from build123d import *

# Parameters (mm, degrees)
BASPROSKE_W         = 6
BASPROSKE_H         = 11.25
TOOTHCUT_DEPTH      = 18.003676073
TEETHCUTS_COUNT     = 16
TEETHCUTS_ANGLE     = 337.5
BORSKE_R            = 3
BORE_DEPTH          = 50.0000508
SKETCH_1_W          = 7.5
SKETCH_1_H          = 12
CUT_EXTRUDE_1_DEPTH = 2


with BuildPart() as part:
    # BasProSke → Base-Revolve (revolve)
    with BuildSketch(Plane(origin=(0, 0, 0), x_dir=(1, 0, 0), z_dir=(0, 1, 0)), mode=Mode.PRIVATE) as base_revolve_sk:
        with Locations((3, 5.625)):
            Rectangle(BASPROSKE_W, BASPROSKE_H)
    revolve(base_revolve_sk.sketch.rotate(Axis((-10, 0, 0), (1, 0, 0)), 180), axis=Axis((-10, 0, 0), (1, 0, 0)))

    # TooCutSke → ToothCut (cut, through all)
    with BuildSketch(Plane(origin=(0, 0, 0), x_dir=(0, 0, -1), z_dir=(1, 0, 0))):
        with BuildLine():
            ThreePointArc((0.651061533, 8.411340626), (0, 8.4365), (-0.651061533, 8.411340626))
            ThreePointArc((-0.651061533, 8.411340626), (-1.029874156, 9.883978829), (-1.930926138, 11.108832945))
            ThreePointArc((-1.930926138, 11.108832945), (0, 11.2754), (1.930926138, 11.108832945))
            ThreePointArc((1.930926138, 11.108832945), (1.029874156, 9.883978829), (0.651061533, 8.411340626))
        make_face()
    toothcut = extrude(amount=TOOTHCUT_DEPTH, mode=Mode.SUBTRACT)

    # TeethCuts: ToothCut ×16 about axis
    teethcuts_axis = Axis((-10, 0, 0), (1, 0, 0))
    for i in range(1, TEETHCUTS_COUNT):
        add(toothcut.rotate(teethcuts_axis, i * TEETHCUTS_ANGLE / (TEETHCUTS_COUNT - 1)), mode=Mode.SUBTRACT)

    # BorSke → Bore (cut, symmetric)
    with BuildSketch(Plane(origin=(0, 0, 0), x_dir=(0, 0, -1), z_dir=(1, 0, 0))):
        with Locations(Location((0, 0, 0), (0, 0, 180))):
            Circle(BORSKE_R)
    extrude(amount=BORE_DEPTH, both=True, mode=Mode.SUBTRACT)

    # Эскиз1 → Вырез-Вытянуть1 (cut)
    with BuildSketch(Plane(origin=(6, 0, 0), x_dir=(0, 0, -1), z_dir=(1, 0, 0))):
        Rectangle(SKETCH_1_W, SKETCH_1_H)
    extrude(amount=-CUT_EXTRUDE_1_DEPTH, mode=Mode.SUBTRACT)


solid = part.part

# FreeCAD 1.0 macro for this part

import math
import FreeCAD as App
import Part
import Sketcher
Q = App.Units.Quantity

doc = App.newDocument("Part")
body = doc.addObject("PartDesign::Body", "Body")

# Sketch on XZ plane
sketch1 = body.newObject("Sketcher::SketchObject", "Sketch")
sketch1.AttachmentSupport = (doc.getObject("XZ_Plane"), [""])
sketch1.MapMode = "FlatFace"
sketch1.addGeometry([
    Part.LineSegment(App.Vector(0, -11.25, 0), App.Vector(0, 0, 0)),
    Part.LineSegment(App.Vector(0, 0, 0), App.Vector(6, 0, 0)),
    Part.LineSegment(App.Vector(6, 0, 0), App.Vector(6, -11.25, 0)),
    Part.LineSegment(App.Vector(6, -11.25, 0), App.Vector(0, -11.25, 0)),
], False)
sketch1.addConstraint([
    Sketcher.Constraint("Coincident", 0, 2, 1, 1),
    Sketcher.Constraint("Coincident", 1, 2, 2, 1),
    Sketcher.Constraint("Coincident", 2, 2, 3, 1),
    Sketcher.Constraint("Coincident", 3, 2, 0, 1),
    Sketcher.Constraint("Vertical", 0),
    Sketcher.Constraint("Horizontal", 1),
    Sketcher.Constraint("Vertical", 2),
    Sketcher.Constraint("Horizontal", 3),
    Sketcher.Constraint("Coincident", 0, 2, -1, 1),
    Sketcher.Constraint("DistanceX", 1, 1, 1, 2, Q("6 mm")),
    Sketcher.Constraint("DistanceY", 0, 1, 0, 2, Q("11.25 mm")),
])
revolution = body.newObject("PartDesign::Revolution", "Revolution")
revolution.Profile = sketch1
revolution.ReferenceAxis = (sketch1, ["H_Axis"])
revolution.Angle = 360

# Sketch on YZ plane
sketch2 = body.newObject("Sketcher::SketchObject", "Sketch001")
sketch2.AttachmentSupport = (doc.getObject("YZ_Plane"), [""])
sketch2.MapMode = "FlatFace"
sketch2.addGeometry([
    Part.ArcOfCircle(Part.Circle(App.Vector(0, 0, 0), App.Vector(0, 0, 1), 8.4365), math.radians(-4.42603), math.radians(4.42603)),
    Part.ArcOfCircle(Part.Circle(App.Vector(8.16933, -4.643734, 0), App.Vector(0, 0, 1), 4), math.radians(42.703292), math.radians(86.531341)),
    Part.ArcOfCircle(Part.Circle(App.Vector(0, 0, 0), App.Vector(0, 0, 1), 11.2754), math.radians(-9.860576), math.radians(9.860576)),
    Part.ArcOfCircle(Part.Circle(App.Vector(8.16933, 4.643734, 0), App.Vector(0, 0, 1), 4), math.radians(-86.531341), math.radians(-42.703292)),
], False)
sketch2.addConstraint([
    Sketcher.Constraint("Coincident", 0, 1, 1, 2),
    Sketcher.Constraint("Coincident", 1, 1, 2, 1),
    Sketcher.Constraint("Coincident", 2, 2, 3, 2),
    Sketcher.Constraint("Coincident", 3, 1, 0, 2),
    Sketcher.Constraint("Coincident", 0, 3, -1, 1),
    Sketcher.Constraint("Coincident", 2, 3, -1, 1),
    Sketcher.Constraint("Equal", 1, 3),
    Sketcher.Constraint("Symmetric", 1, 3, 3, 3, -1),
    Sketcher.Constraint("Radius", 1, Q("4 mm")),
    Sketcher.Constraint("Radius", 0, Q("8.4365 mm")),
    Sketcher.Constraint("Radius", 2, Q("11.2754 mm")),
    Sketcher.Constraint("DistanceX", -1, 1, 1, 3, Q("8.16933 mm")),
    Sketcher.Constraint("DistanceX", -1, 1, 0, 1, Q("8.411341 mm")),
])
pocket1 = body.newObject("PartDesign::Pocket", "Pocket")
pocket1.Profile = sketch2
pocket1.Type = "ThroughAll"
pocket1.Reversed = True
doc.recompute()

polarpattern = body.newObject("PartDesign::PolarPattern", "PolarPattern")
polarpattern.Originals = [pocket1]
polarpattern.Axis = (doc.getObject("X_Axis"), [""])
polarpattern.Angle = 360
polarpattern.Occurrences = 16
body.Tip = polarpattern

# Sketch on YZ plane
sketch3 = body.newObject("Sketcher::SketchObject", "Sketch002")
sketch3.AttachmentSupport = (doc.getObject("YZ_Plane"), [""])
sketch3.MapMode = "FlatFace"
sketch3.addGeometry(Part.Circle(App.Vector(0, 0, 0), App.Vector(0, 0, 1), 3), False)
sketch3.addConstraint([
    Sketcher.Constraint("Coincident", 0, 3, -1, 1),
    Sketcher.Constraint("Diameter", 0, Q("6 mm")),
])
pocket2 = body.newObject("PartDesign::Pocket", "Pocket001")
pocket2.Profile = sketch3
pocket2.Length = 100.000102
pocket2.Midplane = True

# Sketch on YZ plane
sketch4 = body.newObject("Sketcher::SketchObject", "Sketch003")
sketch4.AttachmentSupport = (doc.getObject("YZ_Plane"), [""])
sketch4.MapMode = "FlatFace"
sketch4.AttachmentOffset = App.Placement(App.Vector(0, 0, 6), App.Rotation())
sketch4.addGeometry([
    Part.LineSegment(App.Vector(6, 3.75, 0), App.Vector(-6, 3.75, 0)),
    Part.LineSegment(App.Vector(-6, 3.75, 0), App.Vector(-6, -3.75, 0)),
    Part.LineSegment(App.Vector(-6, -3.75, 0), App.Vector(6, -3.75, 0)),
    Part.LineSegment(App.Vector(6, -3.75, 0), App.Vector(6, 3.75, 0)),
], False)
sketch4.addConstraint([
    Sketcher.Constraint("Coincident", 0, 2, 1, 1),
    Sketcher.Constraint("Coincident", 1, 2, 2, 1),
    Sketcher.Constraint("Coincident", 2, 2, 3, 1),
    Sketcher.Constraint("Coincident", 3, 2, 0, 1),
    Sketcher.Constraint("Horizontal", 0),
    Sketcher.Constraint("Vertical", 1),
    Sketcher.Constraint("Horizontal", 2),
    Sketcher.Constraint("Vertical", 3),
    Sketcher.Constraint("Symmetric", 0, 2, 2, 2, -1, 1),
    Sketcher.Constraint("DistanceX", 0, 2, 0, 1, Q("12 mm")),
    Sketcher.Constraint("DistanceY", 1, 2, 1, 1, Q("7.5 mm")),
])
pocket3 = body.newObject("PartDesign::Pocket", "Pocket002")
pocket3.Profile = sketch4
pocket3.Length = 2

doc.recompute()
